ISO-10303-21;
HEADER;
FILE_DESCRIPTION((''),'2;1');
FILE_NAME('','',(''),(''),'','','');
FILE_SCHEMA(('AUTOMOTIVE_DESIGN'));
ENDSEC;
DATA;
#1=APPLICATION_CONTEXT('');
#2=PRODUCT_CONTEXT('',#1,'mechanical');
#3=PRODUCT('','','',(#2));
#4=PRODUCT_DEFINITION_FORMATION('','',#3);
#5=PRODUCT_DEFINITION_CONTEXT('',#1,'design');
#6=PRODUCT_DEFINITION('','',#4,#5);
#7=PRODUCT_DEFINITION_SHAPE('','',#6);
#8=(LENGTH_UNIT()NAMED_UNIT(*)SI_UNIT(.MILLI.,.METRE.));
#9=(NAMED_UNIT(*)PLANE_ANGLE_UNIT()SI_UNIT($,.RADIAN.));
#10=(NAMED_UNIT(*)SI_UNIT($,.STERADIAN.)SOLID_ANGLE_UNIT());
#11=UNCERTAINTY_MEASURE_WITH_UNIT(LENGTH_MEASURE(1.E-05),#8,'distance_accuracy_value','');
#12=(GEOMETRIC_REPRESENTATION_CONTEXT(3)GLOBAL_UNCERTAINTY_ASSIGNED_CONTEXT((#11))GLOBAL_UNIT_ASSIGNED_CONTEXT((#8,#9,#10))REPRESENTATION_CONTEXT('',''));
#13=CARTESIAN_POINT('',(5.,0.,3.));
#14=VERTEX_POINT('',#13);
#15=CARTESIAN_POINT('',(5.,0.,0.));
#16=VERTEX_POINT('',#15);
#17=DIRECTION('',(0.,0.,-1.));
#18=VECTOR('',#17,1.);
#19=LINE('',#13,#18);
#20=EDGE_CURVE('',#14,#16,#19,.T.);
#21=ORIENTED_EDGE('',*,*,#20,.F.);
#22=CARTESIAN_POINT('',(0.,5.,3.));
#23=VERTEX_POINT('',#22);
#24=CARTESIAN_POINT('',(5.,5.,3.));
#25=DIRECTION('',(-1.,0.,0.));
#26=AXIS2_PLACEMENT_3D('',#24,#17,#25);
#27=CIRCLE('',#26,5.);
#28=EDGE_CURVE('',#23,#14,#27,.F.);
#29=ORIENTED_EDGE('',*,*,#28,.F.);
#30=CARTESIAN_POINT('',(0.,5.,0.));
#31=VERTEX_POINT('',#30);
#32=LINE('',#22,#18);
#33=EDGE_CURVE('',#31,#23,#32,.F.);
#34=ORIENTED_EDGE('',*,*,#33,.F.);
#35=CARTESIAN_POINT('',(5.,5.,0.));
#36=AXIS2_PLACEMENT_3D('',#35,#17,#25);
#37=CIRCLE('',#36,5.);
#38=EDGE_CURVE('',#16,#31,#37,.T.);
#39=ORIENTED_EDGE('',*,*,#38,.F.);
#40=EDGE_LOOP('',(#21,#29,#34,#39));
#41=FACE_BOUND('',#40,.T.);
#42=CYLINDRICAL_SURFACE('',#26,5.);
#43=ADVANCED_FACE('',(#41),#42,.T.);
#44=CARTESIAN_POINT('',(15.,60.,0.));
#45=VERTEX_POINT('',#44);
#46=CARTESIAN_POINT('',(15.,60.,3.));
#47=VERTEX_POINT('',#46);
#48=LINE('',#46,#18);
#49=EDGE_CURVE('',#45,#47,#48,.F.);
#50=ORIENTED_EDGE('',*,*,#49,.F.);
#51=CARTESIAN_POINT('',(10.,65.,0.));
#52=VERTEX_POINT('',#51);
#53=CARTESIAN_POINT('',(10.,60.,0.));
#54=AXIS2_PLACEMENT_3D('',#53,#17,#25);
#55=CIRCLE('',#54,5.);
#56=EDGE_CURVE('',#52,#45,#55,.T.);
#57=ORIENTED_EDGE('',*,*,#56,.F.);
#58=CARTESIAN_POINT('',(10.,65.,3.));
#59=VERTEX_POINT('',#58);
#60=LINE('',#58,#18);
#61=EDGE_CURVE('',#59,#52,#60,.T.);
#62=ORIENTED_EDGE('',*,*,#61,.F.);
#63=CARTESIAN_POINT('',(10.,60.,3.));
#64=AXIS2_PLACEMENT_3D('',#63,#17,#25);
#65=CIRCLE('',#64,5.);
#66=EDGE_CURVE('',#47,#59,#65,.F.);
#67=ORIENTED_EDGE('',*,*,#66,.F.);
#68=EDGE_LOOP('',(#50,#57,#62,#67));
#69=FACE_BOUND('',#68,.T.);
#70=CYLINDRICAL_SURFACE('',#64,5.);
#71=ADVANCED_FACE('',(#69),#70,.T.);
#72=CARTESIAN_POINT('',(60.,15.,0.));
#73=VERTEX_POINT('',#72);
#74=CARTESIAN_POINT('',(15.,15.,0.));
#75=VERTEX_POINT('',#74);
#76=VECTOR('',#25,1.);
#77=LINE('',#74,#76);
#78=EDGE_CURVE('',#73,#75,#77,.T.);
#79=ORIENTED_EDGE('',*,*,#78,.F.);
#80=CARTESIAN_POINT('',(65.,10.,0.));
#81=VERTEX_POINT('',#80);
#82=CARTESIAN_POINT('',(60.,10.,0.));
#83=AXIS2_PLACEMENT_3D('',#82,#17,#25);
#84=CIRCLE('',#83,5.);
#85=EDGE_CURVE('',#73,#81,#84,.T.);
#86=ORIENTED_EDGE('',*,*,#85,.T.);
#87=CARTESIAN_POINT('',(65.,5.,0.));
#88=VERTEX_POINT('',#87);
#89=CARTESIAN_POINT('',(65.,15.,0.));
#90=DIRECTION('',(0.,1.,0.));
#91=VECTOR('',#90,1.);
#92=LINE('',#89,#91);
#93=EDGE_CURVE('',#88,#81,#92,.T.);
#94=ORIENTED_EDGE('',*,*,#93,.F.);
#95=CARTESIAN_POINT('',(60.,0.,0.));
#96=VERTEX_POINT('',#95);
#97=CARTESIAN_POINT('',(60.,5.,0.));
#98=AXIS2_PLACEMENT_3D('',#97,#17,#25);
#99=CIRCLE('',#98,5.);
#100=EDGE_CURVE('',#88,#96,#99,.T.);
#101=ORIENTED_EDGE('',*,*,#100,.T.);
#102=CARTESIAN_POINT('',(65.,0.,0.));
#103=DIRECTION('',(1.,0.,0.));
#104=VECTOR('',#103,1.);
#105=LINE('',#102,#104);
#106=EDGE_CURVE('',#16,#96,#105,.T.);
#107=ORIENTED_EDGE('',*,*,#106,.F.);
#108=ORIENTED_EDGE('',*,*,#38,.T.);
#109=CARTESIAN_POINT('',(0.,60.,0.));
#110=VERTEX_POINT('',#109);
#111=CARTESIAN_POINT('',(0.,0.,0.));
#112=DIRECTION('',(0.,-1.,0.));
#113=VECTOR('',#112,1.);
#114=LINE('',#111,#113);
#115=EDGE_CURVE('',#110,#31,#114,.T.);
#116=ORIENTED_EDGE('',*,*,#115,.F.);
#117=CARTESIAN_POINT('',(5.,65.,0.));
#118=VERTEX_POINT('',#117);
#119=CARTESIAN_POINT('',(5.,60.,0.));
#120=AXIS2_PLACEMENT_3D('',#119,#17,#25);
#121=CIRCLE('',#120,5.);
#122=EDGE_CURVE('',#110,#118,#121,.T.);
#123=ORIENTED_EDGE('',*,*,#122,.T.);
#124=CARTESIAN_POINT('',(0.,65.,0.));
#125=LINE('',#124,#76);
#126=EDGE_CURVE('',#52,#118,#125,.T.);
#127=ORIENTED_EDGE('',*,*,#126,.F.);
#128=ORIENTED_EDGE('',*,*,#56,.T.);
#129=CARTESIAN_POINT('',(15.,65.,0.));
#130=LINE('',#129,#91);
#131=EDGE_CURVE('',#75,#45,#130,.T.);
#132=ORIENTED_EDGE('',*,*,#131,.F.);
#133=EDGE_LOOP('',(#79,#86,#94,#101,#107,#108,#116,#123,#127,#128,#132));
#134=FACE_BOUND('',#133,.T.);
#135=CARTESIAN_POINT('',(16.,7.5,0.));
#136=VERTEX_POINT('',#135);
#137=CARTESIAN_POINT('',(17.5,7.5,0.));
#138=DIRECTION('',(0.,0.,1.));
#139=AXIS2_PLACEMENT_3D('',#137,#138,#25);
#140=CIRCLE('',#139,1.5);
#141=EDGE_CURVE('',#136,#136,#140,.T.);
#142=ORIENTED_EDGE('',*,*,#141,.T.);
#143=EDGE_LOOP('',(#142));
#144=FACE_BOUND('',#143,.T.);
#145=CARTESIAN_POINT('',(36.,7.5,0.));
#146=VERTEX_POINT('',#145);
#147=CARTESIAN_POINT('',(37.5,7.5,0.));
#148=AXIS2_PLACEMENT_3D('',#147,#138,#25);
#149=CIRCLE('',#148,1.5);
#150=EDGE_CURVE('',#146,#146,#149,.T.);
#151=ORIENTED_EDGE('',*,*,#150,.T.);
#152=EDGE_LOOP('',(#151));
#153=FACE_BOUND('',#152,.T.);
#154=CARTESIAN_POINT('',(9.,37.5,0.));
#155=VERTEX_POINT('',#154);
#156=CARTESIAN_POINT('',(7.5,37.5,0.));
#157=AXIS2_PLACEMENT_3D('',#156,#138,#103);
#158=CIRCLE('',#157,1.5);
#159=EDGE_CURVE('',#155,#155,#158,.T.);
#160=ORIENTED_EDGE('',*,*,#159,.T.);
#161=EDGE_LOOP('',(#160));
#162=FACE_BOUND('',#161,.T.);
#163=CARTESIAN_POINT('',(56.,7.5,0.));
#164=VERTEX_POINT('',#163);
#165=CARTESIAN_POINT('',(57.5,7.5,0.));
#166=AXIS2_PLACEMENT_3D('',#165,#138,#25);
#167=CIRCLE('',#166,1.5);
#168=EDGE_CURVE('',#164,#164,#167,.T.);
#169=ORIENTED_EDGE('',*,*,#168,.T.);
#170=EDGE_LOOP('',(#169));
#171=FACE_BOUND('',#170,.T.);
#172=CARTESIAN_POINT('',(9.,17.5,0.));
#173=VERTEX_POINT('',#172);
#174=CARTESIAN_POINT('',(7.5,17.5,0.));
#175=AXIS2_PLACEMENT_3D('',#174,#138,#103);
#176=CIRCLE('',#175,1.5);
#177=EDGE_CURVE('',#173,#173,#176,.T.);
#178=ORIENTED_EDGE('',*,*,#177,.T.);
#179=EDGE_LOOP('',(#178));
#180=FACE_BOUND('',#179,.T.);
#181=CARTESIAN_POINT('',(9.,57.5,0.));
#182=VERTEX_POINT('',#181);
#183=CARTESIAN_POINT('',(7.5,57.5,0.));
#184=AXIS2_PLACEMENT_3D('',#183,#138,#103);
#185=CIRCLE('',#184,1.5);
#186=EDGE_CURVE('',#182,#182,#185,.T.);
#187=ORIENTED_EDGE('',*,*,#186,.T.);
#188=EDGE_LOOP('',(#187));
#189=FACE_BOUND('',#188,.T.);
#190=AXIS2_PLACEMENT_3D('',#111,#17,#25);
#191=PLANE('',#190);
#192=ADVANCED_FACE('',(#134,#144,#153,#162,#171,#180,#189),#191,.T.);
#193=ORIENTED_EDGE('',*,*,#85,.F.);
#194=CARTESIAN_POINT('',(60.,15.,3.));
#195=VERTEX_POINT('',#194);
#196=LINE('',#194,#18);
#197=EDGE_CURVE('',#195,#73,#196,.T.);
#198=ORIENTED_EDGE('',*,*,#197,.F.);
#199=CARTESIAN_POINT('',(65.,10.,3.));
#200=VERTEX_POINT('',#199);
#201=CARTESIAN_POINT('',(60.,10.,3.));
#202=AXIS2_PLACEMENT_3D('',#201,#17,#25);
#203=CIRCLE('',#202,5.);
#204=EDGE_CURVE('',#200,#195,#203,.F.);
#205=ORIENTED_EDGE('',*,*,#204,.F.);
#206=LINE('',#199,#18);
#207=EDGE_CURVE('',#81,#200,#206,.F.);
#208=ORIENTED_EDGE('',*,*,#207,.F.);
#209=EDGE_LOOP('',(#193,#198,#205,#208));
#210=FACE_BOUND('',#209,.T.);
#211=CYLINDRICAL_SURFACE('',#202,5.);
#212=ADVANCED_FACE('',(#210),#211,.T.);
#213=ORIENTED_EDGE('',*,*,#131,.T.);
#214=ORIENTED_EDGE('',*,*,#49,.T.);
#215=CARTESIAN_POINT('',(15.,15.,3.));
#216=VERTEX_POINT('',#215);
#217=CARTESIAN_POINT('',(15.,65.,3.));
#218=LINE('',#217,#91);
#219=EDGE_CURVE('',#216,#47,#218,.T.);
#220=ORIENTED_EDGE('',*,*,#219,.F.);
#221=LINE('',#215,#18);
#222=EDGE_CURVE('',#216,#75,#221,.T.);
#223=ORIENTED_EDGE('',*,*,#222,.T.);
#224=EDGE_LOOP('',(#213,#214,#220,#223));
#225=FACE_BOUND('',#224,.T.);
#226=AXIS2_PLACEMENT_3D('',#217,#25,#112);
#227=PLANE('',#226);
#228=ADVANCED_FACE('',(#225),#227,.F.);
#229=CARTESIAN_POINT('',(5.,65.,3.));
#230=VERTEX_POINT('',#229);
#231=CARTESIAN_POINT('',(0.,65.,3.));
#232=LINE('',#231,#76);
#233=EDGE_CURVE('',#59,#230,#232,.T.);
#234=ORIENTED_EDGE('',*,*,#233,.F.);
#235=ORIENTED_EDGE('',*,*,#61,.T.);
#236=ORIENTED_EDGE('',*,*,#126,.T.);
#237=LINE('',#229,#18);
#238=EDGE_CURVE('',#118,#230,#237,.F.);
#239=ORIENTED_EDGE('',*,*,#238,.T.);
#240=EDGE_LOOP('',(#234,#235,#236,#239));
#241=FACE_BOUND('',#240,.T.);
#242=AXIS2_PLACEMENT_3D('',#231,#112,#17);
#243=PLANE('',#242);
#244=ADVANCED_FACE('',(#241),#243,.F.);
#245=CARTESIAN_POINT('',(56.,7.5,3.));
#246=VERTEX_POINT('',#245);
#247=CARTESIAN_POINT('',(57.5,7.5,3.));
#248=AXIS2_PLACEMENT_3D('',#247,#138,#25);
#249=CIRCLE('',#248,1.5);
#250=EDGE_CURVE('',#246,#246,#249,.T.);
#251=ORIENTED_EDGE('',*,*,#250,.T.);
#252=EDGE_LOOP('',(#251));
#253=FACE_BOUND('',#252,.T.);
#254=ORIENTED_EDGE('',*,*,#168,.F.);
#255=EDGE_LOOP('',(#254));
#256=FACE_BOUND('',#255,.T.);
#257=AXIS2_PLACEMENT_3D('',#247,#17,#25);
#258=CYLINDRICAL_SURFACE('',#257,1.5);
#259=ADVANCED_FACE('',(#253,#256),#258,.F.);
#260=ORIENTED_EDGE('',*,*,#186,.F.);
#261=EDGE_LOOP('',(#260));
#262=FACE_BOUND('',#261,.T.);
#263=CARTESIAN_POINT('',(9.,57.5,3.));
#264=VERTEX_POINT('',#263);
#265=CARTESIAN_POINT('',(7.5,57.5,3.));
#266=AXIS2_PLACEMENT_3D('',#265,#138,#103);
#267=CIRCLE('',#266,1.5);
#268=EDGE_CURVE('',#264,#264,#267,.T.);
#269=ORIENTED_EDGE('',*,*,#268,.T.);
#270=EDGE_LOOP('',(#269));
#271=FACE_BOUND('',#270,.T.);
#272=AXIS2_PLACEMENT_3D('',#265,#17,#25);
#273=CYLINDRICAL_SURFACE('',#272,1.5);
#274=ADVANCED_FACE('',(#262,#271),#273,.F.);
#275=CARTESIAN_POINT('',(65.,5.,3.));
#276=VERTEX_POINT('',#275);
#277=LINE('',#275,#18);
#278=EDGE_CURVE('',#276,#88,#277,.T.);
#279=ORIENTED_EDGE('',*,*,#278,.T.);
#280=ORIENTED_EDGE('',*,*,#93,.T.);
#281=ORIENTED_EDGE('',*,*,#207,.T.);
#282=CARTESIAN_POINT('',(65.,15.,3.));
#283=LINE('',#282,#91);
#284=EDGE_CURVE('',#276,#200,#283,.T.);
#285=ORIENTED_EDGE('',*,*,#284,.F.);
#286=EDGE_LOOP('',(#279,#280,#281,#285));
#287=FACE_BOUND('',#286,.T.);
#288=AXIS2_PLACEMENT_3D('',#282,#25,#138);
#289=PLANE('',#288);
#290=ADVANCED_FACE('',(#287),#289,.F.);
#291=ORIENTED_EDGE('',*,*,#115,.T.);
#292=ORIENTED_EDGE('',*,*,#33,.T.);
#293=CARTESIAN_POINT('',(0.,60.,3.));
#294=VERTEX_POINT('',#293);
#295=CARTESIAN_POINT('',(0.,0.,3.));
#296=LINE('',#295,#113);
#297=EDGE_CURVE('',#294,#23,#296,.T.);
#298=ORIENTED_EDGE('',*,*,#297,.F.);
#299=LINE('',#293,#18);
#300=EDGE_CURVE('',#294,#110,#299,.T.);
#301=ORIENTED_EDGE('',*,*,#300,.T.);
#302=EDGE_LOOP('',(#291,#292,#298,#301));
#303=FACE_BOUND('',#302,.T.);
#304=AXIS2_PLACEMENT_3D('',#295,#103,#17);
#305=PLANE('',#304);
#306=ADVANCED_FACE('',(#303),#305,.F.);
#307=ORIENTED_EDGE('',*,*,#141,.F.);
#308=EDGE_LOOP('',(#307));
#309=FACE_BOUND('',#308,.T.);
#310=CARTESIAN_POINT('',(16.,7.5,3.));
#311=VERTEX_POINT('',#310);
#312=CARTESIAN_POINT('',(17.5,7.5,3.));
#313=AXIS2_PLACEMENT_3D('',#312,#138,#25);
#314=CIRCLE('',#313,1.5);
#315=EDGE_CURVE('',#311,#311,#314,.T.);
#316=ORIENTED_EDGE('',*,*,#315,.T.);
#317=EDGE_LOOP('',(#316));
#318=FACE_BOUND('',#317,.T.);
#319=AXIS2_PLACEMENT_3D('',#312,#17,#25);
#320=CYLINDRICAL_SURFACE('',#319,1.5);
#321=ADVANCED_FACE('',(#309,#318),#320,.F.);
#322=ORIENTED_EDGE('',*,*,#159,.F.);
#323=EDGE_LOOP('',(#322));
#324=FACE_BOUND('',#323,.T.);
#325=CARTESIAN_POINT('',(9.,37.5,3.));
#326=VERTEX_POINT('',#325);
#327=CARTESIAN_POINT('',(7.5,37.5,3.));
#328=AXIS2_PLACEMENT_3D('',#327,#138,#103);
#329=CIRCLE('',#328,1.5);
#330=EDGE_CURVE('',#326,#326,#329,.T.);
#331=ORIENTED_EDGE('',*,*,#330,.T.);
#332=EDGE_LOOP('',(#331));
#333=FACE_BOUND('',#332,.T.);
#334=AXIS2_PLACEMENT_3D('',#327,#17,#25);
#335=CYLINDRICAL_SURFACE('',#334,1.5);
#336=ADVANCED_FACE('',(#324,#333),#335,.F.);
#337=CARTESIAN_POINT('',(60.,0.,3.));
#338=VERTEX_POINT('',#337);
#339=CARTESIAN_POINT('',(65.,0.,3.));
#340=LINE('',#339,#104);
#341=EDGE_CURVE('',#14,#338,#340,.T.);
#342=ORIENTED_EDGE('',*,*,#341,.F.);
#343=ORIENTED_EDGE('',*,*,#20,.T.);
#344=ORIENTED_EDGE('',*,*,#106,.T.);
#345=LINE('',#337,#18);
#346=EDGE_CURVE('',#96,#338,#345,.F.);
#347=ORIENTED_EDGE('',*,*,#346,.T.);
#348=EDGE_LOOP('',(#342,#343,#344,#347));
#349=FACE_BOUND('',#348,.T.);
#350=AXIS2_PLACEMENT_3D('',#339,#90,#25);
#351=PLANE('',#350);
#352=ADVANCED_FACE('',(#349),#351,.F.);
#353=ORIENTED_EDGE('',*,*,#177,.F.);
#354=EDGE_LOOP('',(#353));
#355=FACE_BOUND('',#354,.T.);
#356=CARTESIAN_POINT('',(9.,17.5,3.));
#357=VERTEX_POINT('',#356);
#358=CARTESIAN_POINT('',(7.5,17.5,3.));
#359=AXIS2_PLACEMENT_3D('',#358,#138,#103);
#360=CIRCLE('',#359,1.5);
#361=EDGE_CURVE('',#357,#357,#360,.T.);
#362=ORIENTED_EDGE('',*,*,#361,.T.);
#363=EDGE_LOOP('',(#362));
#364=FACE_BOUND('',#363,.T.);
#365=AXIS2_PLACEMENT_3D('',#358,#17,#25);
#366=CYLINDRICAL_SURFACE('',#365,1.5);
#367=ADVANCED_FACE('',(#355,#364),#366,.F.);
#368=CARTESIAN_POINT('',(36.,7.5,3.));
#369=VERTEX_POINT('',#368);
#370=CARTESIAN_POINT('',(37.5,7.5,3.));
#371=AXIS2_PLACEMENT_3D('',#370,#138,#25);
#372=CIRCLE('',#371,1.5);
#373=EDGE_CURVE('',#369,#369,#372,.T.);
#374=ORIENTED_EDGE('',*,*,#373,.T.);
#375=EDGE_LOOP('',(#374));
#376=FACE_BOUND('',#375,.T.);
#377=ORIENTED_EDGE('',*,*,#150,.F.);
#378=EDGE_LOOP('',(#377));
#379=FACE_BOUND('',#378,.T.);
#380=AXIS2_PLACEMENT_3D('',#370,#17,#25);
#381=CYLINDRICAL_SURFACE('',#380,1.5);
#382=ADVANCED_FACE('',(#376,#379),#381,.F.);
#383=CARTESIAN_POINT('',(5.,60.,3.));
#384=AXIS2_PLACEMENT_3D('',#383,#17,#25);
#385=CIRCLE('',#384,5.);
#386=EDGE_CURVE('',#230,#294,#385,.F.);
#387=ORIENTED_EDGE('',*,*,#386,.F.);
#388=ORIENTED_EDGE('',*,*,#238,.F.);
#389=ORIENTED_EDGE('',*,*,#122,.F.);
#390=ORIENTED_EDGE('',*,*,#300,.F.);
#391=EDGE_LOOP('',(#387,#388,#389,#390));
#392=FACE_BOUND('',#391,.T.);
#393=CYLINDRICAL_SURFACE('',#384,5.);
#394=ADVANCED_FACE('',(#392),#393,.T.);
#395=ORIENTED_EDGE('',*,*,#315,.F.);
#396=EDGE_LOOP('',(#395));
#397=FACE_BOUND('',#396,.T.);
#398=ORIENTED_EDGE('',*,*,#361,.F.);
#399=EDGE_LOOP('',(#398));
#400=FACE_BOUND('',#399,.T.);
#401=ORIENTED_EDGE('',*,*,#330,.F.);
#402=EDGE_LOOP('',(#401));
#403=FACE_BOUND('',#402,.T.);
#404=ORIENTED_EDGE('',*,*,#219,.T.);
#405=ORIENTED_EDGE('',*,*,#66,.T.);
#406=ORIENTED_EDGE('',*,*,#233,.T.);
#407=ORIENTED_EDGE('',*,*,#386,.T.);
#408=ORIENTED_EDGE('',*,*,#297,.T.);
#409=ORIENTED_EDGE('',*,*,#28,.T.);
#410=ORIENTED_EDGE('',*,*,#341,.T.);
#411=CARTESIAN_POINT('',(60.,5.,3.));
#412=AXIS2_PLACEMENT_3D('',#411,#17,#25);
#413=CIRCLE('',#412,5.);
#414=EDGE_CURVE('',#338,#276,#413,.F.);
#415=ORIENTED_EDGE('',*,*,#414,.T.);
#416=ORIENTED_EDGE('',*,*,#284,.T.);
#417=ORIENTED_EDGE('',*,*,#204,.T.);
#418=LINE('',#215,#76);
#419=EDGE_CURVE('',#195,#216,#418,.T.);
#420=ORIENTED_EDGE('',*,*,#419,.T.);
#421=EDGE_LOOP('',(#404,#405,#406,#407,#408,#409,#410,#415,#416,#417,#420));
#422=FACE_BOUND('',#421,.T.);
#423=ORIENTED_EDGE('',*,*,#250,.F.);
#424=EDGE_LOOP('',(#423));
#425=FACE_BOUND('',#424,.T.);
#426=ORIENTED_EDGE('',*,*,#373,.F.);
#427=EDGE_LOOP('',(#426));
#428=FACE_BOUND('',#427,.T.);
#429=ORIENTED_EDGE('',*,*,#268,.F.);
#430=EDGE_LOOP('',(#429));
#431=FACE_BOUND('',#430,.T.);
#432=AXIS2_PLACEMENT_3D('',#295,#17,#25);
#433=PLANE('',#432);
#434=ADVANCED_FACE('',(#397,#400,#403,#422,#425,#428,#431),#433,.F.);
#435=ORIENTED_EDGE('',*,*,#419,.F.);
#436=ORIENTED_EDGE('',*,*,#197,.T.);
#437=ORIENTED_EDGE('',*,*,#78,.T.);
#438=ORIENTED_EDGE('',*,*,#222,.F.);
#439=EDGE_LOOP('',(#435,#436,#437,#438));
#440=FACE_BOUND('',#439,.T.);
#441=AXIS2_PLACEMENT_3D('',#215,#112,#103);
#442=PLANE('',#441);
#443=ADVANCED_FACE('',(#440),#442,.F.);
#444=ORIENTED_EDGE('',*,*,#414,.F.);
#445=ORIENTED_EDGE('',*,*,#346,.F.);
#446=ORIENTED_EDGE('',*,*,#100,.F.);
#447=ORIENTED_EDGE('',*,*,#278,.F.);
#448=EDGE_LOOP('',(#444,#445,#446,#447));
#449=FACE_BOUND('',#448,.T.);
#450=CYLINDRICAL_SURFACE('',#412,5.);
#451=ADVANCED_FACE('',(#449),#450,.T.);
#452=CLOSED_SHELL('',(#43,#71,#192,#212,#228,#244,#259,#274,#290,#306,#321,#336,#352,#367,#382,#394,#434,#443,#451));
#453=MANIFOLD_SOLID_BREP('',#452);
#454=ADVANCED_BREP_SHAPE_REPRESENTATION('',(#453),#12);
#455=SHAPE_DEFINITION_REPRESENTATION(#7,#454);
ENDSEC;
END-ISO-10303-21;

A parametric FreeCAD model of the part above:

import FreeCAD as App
import Part
import Sketcher
Q = App.Units.Quantity


def edges_at(feature, points):
    """Names of the edges that pass closest to the given points."""
    edges = feature.Shape.Edges
    near = lambda p: min(range(len(edges)), key=lambda i: edges[i].distToShape(Part.Vertex(*p))[0])
    return sorted({f"Edge{near(p) + 1}" for p in points})

doc = App.newDocument("Part")
body = doc.addObject("PartDesign::Body", "Body")

# Sketch on XY plane
sketch1 = body.newObject("Sketcher::SketchObject", "Sketch")
sketch1.AttachmentSupport = (doc.getObject("XY_Plane"), [""])
sketch1.MapMode = "FlatFace"
sketch1.addGeometry([
    Part.LineSegment(App.Vector(0, 65, 0), App.Vector(0, 0, 0)),  # 0
    Part.LineSegment(App.Vector(0, 0, 0), App.Vector(65, 0, 0)),  # 1
    Part.LineSegment(App.Vector(65, 0, 0), App.Vector(65, 15, 0)),  # 2
    Part.LineSegment(App.Vector(65, 15, 0), App.Vector(15, 15, 0)),  # 3
    Part.LineSegment(App.Vector(15, 15, 0), App.Vector(15, 65, 0)),  # 4
    Part.LineSegment(App.Vector(15, 65, 0), App.Vector(0, 65, 0)),  # 5
    Part.Circle(App.Vector(57.5, 7.5, 0), App.Vector(0, 0, 1), 1.5),  # 6
    Part.Circle(App.Vector(37.5, 7.5, 0), App.Vector(0, 0, 1), 1.5),  # 7
    Part.Circle(App.Vector(17.5, 7.5, 0), App.Vector(0, 0, 1), 1.5),  # 8
    Part.Circle(App.Vector(7.5, 17.5, 0), App.Vector(0, 0, 1), 1.5),  # 9
    Part.Circle(App.Vector(7.5, 37.5, 0), App.Vector(0, 0, 1), 1.5),  # 10
    Part.Circle(App.Vector(7.5, 57.5, 0), App.Vector(0, 0, 1), 1.5),  # 11
], False)
sketch1.addConstraint([
    Sketcher.Constraint("Coincident", 0, 2, 1, 1),
    Sketcher.Constraint("Coincident", 1, 2, 2, 1),
    Sketcher.Constraint("Coincident", 2, 2, 3, 1),
    Sketcher.Constraint("Coincident", 3, 2, 4, 1),
    Sketcher.Constraint("Coincident", 4, 2, 5, 1),
    Sketcher.Constraint("Coincident", 5, 2, 0, 1),
    Sketcher.Constraint("Vertical", 0),
    Sketcher.Constraint("Horizontal", 1),
    Sketcher.Constraint("Vertical", 2),
    Sketcher.Constraint("Horizontal", 3),
    Sketcher.Constraint("Vertical", 4),
    Sketcher.Constraint("Horizontal", 5),
    Sketcher.Constraint("Coincident", 0, 2, -1, 1),
    Sketcher.Constraint("Equal", 6, 7),
    Sketcher.Constraint("Equal", 7, 8),
    Sketcher.Constraint("Equal", 8, 9),
    Sketcher.Constraint("Equal", 9, 10),
    Sketcher.Constraint("Equal", 10, 11),
    Sketcher.Constraint("Horizontal", 6, 3, 7, 3),
    Sketcher.Constraint("Horizontal", 7, 3, 8, 3),
    Sketcher.Constraint("Vertical", 9, 3, 10, 3),
    Sketcher.Constraint("Vertical", 10, 3, 11, 3),
    Sketcher.Constraint("Equal", 1, 0),
    Sketcher.Constraint("Equal", 5, 2),
    Sketcher.Constraint("Diameter", 6, Q("3 mm")),
    Sketcher.Constraint("DistanceX", 1, 1, 1, 2, Q("65 mm")),
    Sketcher.Constraint("DistanceX", 3, 2, 3, 1, Q("50 mm")),
    Sketcher.Constraint("DistanceX", 7, 3, 6, 3, Q("20 mm")),
    Sketcher.Constraint("DistanceX", 8, 3, 7, 3, Q("20 mm")),
    Sketcher.Constraint("DistanceX", 9, 3, 8, 3, Q("10 mm")),
    Sketcher.Constraint("DistanceY", 8, 3, 9, 3, Q("10 mm")),
    Sketcher.Constraint("DistanceY", 9, 3, 10, 3, Q("20 mm")),
    Sketcher.Constraint("DistanceY", 10, 3, 11, 3, Q("20 mm")),
    Sketcher.Constraint("DistanceX", -1, 1, 6, 3, Q("57.5 mm")),
    Sketcher.Constraint("DistanceY", -1, 1, 6, 3, Q("7.5 mm")),
])
pad1 = body.newObject("PartDesign::Pad", "Pad")
pad1.Profile = sketch1
pad1.Length = 3
doc.recompute()

fillet = body.newObject("PartDesign::Fillet", "Fillet")
fillet.Base = (pad1, edges_at(pad1, [
    (0, 0, 1.5),
    (0, 65, 1.5),
    (15, 65, 1.5),
    (65, 15, 1.5),
    (65, 0, 1.5),
]))
fillet.Radius = 5

doc.recompute()
